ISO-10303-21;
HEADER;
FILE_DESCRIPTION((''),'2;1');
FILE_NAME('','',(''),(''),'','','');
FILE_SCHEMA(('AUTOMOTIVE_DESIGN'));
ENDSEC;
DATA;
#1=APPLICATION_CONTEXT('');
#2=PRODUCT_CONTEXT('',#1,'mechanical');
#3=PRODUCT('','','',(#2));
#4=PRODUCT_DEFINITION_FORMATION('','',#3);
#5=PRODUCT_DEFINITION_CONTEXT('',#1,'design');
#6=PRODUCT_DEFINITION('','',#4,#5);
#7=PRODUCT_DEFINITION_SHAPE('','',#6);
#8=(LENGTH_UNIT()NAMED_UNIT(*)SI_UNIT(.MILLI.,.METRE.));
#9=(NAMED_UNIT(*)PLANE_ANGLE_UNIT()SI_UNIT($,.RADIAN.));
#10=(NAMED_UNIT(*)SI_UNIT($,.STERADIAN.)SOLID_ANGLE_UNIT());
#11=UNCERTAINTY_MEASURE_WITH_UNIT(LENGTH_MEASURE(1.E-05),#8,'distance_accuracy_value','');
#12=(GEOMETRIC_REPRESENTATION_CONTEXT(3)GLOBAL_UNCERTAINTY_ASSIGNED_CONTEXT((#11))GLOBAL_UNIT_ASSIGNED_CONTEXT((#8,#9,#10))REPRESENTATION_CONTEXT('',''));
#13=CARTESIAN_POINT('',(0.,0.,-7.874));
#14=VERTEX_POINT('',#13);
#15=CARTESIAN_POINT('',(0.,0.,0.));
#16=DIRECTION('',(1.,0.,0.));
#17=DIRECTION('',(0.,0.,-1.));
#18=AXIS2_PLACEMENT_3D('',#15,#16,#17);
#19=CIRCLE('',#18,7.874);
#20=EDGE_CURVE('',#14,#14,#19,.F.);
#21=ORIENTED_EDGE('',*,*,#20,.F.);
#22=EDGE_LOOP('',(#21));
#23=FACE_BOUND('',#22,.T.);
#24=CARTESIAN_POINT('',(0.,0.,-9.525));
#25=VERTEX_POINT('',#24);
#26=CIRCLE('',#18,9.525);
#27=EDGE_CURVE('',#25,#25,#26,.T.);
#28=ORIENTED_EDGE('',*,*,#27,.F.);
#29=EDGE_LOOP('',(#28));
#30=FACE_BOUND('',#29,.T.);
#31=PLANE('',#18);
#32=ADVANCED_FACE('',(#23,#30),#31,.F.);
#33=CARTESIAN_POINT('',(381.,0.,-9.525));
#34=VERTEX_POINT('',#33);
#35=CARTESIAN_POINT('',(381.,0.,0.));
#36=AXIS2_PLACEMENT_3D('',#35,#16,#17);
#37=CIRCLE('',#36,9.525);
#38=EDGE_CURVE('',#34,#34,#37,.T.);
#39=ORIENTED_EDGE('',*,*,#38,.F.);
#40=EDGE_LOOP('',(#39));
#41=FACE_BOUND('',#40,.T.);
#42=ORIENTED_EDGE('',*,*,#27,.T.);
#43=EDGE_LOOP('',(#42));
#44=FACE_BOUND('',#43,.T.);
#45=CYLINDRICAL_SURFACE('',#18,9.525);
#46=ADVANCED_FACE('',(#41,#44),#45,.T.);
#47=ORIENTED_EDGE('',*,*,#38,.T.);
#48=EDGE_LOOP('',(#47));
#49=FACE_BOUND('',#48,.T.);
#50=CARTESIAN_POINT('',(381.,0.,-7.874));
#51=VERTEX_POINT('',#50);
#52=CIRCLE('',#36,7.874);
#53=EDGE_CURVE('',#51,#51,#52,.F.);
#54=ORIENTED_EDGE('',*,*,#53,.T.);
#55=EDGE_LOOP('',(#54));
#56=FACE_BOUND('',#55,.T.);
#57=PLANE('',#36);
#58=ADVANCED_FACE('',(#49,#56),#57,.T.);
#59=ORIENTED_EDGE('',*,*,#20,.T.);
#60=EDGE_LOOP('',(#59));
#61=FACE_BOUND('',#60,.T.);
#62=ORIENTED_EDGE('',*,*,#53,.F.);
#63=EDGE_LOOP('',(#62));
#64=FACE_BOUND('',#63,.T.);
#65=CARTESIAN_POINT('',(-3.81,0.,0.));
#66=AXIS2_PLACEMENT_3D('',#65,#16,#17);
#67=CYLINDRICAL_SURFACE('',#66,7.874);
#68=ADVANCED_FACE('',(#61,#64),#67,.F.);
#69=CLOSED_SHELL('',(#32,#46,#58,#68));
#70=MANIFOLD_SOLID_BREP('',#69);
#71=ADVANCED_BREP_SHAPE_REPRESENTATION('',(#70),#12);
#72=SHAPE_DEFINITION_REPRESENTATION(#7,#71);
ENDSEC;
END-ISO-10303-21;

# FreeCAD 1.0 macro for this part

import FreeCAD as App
import Part
import Sketcher
Q = App.Units.Quantity

doc = App.newDocument("Part")
params = doc.addObject("Spreadsheet::Sheet", "Params")
for row, (alias, value) in enumerate([
    ("sketch1_diameter", "0.75 in"),
    ("sketch2_width", "15 in"),
    ("sketch3_diameter", "0.62 in"),
    ("sketch4_width", "15 in"),
], start=1):
    params.set(f"A{row}", alias)
    params.set(f"B{row}", "=" + value)
    params.setAlias(f"B{row}", alias)

body = doc.addObject("PartDesign::Body", "Body")

# Sketch on YZ plane
sketch1 = body.newObject("Sketcher::SketchObject", "Sketch")
sketch1.AttachmentSupport = (doc.getObject("YZ_Plane"), [""])
sketch1.MapMode = "FlatFace"
sketch1.addGeometry(Part.Circle(App.Vector(0, 0, 0), App.Vector(0, 0, 1), 10), False)
sketch1.addConstraint(Sketcher.Constraint("Coincident", 0, 3, -1, 1))
sketch1.addConstraint(Sketcher.Constraint("Diameter", 0, Q("0.75 in")))
sketch1.setExpression("Constraints[1]", "Params.sketch1_diameter")

# Sketch on XY plane
sketch2 = body.newObject("Sketcher::SketchObject", "Sketch001")
sketch2.AttachmentSupport = (doc.getObject("XY_Plane"), [""])
sketch2.MapMode = "FlatFace"
sketch2.addGeometry(Part.LineSegment(App.Vector(0, 0, 0), App.Vector(381, 0, 0)), False)
sketch2.addConstraint(Sketcher.Constraint("Horizontal", 0))
sketch2.addConstraint(Sketcher.Constraint("Coincident", 0, 1, -1, 1))
sketch2.addConstraint(Sketcher.Constraint("DistanceX", 0, 1, 0, 2, Q("15 in")))
sketch2.setExpression("Constraints[2]", "Params.sketch2_width")
doc.recompute()

additivepipe = body.newObject("PartDesign::AdditivePipe", "AdditivePipe")
additivepipe.Profile = sketch1
additivepipe.Spine = (sketch2, ["Edge1"])

# Sketch on YZ plane
sketch3 = body.newObject("Sketcher::SketchObject", "Sketch002")
sketch3.AttachmentSupport = (doc.getObject("YZ_Plane"), [""])
sketch3.MapMode = "FlatFace"
sketch3.addGeometry(Part.Circle(App.Vector(0, 0, 0), App.Vector(0, 0, 1), 8), False)
sketch3.addConstraint(Sketcher.Constraint("Coincident", 0, 3, -1, 1))
sketch3.addConstraint(Sketcher.Constraint("Diameter", 0, Q("0.62 in")))
sketch3.setExpression("Constraints[1]", "Params.sketch3_diameter")

# Sketch on XY plane
sketch4 = body.newObject("Sketcher::SketchObject", "Sketch003")
sketch4.AttachmentSupport = (doc.getObject("XY_Plane"), [""])
sketch4.MapMode = "FlatFace"
sketch4.addGeometry(Part.LineSegment(App.Vector(0, 0, 0), App.Vector(381, 0, 0)), False)
sketch4.addConstraint(Sketcher.Constraint("Horizontal", 0))
sketch4.addConstraint(Sketcher.Constraint("Coincident", 0, 1, -1, 1))
sketch4.addConstraint(Sketcher.Constraint("DistanceX", 0, 1, 0, 2, Q("15 in")))
sketch4.setExpression("Constraints[2]", "Params.sketch4_width")
doc.recompute()

subtractivepipe = body.newObject("PartDesign::SubtractivePipe", "SubtractivePipe")
subtractivepipe.Profile = sketch3
subtractivepipe.Spine = (sketch4, ["Edge1"])

doc.recompute()
